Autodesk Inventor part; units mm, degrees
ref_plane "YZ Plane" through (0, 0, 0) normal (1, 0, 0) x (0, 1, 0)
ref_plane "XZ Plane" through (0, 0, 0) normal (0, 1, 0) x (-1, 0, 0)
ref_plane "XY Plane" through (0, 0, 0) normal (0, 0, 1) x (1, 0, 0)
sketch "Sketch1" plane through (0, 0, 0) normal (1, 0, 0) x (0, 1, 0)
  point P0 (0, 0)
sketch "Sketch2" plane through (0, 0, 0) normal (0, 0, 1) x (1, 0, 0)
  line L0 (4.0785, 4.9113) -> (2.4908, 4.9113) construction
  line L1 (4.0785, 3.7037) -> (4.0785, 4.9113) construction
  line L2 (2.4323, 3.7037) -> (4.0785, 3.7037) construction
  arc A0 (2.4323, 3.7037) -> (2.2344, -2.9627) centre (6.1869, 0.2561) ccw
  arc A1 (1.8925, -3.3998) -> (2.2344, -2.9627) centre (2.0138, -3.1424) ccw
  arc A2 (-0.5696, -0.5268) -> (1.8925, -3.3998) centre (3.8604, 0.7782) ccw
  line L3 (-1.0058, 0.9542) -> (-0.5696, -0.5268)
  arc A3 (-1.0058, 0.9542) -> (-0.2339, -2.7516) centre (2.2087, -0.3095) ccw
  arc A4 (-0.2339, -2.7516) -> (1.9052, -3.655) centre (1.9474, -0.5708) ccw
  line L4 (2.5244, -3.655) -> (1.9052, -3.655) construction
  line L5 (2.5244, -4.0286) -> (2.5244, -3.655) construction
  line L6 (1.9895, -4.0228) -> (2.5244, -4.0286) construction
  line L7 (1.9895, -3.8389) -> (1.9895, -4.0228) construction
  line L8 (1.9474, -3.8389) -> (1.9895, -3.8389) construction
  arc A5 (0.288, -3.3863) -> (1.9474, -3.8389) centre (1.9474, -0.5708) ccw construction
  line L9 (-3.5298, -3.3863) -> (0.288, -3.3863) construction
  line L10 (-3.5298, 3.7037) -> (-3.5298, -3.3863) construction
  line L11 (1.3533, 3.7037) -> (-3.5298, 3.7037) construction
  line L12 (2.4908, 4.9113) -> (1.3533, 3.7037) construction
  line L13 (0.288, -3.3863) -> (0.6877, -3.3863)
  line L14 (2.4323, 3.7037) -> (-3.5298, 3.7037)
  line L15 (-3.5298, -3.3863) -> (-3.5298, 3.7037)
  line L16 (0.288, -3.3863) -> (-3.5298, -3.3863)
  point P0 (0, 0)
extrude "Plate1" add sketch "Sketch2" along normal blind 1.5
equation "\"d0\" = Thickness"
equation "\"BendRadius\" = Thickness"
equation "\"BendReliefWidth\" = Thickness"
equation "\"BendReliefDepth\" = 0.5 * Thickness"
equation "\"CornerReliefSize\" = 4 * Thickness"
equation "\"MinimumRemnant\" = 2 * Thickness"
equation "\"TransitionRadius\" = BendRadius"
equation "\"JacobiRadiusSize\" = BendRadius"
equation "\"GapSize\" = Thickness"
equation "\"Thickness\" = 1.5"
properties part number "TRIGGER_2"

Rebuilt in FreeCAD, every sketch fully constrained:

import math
import FreeCAD as App
import Part
import Sketcher
Q = App.Units.Quantity

doc = App.newDocument("Part")
body = doc.addObject("PartDesign::Body", "Body")

sketch1 = doc.addObject("Sketcher::SketchObject", "Sketch")
body.addObject(sketch1)
sketch1.AttachmentSupport = (doc.XY_Plane, [""])
sketch1.MapMode = "FlatFace"
sketch1.addGeometry(Part.ArcOfCircle(Part.Circle(App.Vector(6.1869, 0.2561, 0), App.Vector(0, 0, 1), 5.097349), math.radians(137.440805), math.radians(219.15836)), False)
sketch1.addGeometry(Part.LineSegment(App.Vector(2.4323, 3.7037, 0), App.Vector(-3.5298, 3.7037, 0)), False)
sketch1.addGeometry(Part.LineSegment(App.Vector(-3.5298, 3.7037, 0), App.Vector(-3.5298, -3.3863, 0)), False)
sketch1.addGeometry(Part.LineSegment(App.Vector(-3.5298, -3.3863, 0), App.Vector(0.6877, -3.3863, 0)), False)
sketch1.addGeometry(Part.ArcOfCircle(Part.Circle(App.Vector(1.9474, -0.5708, 0), App.Vector(0, 0, 1), 3.084471), math.radians(-135.006567), math.radians(-114.10451)), False)
sketch1.addGeometry(Part.ArcOfCircle(Part.Circle(App.Vector(2.2087, -0.3095, 0), App.Vector(0, 0, 1), 3.453976), math.radians(158.538975), math.radians(224.994135)), False)
sketch1.addGeometry(Part.LineSegment(App.Vector(-1.0058, 0.9542, 0), App.Vector(-0.5696, -0.5268, 0)), False)
sketch1.addGeometry(Part.ArcOfCircle(Part.Circle(App.Vector(3.8604, 0.7782, 0), App.Vector(0, 0, 1), 4.618217), math.radians(-163.585955), math.radians(-115.221131)), False)
sketch1.addGeometry(Part.ArcOfCircle(Part.Circle(App.Vector(2.0138, -3.1424, 0), App.Vector(0, 0, 1), 0.28455), math.radians(-115.232203), math.radians(39.166142)), False)
sketch1.addConstraint(Sketcher.Constraint("Coincident", 0, 1, 1, 1))
sketch1.addConstraint(Sketcher.Constraint("Coincident", 1, 2, 2, 1))
sketch1.addConstraint(Sketcher.Constraint("Coincident", 2, 2, 3, 1))
sketch1.addConstraint(Sketcher.Constraint("Coincident", 3, 2, 4, 2))
sketch1.addConstraint(Sketcher.Constraint("Tangent", 4, 1, 5, 2))
sketch1.addConstraint(Sketcher.Constraint("Coincident", 5, 1, 6, 1))
sketch1.addConstraint(Sketcher.Constraint("Tangent", 6, 2, 7, 1))
sketch1.addConstraint(Sketcher.Constraint("Tangent", 7, 2, 8, 1))
sketch1.addConstraint(Sketcher.Constraint("Tangent", 8, 2, 0, 2))
sketch1.addConstraint(Sketcher.Constraint("Horizontal", 1))
sketch1.addConstraint(Sketcher.Constraint("Vertical", 2))
sketch1.addConstraint(Sketcher.Constraint("Horizontal", 3))
sketch1.addConstraint(Sketcher.Constraint("Radius", 5, Q("3.454 mm")))
sketch1.addConstraint(Sketcher.Constraint("DistanceY", 2, 2, 2, 1, Q("7.09 mm")))
sketch1.addConstraint(Sketcher.Constraint("Radius", 0, Q("5.0973 mm")))
sketch1.addConstraint(Sketcher.Constraint("Radius", 4, Q("3.0845 mm")))
sketch1.addConstraint(Sketcher.Constraint("Radius", 7, Q("4.6182 mm")))
sketch1.addConstraint(Sketcher.Constraint("Radius", 8, Q("0.2845 mm")))
sketch1.addConstraint(Sketcher.Constraint("DistanceX", 1, 2, 1, 1, Q("5.962 mm")))
sketch1.addConstraint(Sketcher.Constraint("Distance", 6, Q("1.544 mm")))
sketch1.addConstraint(Sketcher.Constraint("DistanceX", 3, 1, 3, 2, Q("4.2175 mm")))
sketch1.addConstraint(Sketcher.Constraint("DistanceX", -1, 1, 0, 3, Q("6.187 mm")))
sketch1.addConstraint(Sketcher.Constraint("DistanceY", -1, 1, 0, 3, Q("0.256 mm")))
sketch1.addConstraint(Sketcher.Constraint("DistanceX", 4, 1, -1, 1, Q("0.234 mm")))
sketch1.addConstraint(Sketcher.Constraint("DistanceY", 4, 3, 0, 3, Q("0.827 mm")))
sketch1.addConstraint(Sketcher.Constraint("DistanceX", 4, 3, 7, 3, Q("1.913 mm")))
sketch1.addConstraint(Sketcher.Constraint("DistanceY", 4, 3, 7, 3, Q("1.349 mm")))
sketch1.addConstraint(Sketcher.Constraint("DistanceX", 8, 3, 5, 3, Q("0.195 mm")))
pad1 = doc.addObject("PartDesign::Pad", "Pad")
body.addObject(pad1)
pad1.Profile = sketch1
pad1.Length = 1.5

doc.recompute()
